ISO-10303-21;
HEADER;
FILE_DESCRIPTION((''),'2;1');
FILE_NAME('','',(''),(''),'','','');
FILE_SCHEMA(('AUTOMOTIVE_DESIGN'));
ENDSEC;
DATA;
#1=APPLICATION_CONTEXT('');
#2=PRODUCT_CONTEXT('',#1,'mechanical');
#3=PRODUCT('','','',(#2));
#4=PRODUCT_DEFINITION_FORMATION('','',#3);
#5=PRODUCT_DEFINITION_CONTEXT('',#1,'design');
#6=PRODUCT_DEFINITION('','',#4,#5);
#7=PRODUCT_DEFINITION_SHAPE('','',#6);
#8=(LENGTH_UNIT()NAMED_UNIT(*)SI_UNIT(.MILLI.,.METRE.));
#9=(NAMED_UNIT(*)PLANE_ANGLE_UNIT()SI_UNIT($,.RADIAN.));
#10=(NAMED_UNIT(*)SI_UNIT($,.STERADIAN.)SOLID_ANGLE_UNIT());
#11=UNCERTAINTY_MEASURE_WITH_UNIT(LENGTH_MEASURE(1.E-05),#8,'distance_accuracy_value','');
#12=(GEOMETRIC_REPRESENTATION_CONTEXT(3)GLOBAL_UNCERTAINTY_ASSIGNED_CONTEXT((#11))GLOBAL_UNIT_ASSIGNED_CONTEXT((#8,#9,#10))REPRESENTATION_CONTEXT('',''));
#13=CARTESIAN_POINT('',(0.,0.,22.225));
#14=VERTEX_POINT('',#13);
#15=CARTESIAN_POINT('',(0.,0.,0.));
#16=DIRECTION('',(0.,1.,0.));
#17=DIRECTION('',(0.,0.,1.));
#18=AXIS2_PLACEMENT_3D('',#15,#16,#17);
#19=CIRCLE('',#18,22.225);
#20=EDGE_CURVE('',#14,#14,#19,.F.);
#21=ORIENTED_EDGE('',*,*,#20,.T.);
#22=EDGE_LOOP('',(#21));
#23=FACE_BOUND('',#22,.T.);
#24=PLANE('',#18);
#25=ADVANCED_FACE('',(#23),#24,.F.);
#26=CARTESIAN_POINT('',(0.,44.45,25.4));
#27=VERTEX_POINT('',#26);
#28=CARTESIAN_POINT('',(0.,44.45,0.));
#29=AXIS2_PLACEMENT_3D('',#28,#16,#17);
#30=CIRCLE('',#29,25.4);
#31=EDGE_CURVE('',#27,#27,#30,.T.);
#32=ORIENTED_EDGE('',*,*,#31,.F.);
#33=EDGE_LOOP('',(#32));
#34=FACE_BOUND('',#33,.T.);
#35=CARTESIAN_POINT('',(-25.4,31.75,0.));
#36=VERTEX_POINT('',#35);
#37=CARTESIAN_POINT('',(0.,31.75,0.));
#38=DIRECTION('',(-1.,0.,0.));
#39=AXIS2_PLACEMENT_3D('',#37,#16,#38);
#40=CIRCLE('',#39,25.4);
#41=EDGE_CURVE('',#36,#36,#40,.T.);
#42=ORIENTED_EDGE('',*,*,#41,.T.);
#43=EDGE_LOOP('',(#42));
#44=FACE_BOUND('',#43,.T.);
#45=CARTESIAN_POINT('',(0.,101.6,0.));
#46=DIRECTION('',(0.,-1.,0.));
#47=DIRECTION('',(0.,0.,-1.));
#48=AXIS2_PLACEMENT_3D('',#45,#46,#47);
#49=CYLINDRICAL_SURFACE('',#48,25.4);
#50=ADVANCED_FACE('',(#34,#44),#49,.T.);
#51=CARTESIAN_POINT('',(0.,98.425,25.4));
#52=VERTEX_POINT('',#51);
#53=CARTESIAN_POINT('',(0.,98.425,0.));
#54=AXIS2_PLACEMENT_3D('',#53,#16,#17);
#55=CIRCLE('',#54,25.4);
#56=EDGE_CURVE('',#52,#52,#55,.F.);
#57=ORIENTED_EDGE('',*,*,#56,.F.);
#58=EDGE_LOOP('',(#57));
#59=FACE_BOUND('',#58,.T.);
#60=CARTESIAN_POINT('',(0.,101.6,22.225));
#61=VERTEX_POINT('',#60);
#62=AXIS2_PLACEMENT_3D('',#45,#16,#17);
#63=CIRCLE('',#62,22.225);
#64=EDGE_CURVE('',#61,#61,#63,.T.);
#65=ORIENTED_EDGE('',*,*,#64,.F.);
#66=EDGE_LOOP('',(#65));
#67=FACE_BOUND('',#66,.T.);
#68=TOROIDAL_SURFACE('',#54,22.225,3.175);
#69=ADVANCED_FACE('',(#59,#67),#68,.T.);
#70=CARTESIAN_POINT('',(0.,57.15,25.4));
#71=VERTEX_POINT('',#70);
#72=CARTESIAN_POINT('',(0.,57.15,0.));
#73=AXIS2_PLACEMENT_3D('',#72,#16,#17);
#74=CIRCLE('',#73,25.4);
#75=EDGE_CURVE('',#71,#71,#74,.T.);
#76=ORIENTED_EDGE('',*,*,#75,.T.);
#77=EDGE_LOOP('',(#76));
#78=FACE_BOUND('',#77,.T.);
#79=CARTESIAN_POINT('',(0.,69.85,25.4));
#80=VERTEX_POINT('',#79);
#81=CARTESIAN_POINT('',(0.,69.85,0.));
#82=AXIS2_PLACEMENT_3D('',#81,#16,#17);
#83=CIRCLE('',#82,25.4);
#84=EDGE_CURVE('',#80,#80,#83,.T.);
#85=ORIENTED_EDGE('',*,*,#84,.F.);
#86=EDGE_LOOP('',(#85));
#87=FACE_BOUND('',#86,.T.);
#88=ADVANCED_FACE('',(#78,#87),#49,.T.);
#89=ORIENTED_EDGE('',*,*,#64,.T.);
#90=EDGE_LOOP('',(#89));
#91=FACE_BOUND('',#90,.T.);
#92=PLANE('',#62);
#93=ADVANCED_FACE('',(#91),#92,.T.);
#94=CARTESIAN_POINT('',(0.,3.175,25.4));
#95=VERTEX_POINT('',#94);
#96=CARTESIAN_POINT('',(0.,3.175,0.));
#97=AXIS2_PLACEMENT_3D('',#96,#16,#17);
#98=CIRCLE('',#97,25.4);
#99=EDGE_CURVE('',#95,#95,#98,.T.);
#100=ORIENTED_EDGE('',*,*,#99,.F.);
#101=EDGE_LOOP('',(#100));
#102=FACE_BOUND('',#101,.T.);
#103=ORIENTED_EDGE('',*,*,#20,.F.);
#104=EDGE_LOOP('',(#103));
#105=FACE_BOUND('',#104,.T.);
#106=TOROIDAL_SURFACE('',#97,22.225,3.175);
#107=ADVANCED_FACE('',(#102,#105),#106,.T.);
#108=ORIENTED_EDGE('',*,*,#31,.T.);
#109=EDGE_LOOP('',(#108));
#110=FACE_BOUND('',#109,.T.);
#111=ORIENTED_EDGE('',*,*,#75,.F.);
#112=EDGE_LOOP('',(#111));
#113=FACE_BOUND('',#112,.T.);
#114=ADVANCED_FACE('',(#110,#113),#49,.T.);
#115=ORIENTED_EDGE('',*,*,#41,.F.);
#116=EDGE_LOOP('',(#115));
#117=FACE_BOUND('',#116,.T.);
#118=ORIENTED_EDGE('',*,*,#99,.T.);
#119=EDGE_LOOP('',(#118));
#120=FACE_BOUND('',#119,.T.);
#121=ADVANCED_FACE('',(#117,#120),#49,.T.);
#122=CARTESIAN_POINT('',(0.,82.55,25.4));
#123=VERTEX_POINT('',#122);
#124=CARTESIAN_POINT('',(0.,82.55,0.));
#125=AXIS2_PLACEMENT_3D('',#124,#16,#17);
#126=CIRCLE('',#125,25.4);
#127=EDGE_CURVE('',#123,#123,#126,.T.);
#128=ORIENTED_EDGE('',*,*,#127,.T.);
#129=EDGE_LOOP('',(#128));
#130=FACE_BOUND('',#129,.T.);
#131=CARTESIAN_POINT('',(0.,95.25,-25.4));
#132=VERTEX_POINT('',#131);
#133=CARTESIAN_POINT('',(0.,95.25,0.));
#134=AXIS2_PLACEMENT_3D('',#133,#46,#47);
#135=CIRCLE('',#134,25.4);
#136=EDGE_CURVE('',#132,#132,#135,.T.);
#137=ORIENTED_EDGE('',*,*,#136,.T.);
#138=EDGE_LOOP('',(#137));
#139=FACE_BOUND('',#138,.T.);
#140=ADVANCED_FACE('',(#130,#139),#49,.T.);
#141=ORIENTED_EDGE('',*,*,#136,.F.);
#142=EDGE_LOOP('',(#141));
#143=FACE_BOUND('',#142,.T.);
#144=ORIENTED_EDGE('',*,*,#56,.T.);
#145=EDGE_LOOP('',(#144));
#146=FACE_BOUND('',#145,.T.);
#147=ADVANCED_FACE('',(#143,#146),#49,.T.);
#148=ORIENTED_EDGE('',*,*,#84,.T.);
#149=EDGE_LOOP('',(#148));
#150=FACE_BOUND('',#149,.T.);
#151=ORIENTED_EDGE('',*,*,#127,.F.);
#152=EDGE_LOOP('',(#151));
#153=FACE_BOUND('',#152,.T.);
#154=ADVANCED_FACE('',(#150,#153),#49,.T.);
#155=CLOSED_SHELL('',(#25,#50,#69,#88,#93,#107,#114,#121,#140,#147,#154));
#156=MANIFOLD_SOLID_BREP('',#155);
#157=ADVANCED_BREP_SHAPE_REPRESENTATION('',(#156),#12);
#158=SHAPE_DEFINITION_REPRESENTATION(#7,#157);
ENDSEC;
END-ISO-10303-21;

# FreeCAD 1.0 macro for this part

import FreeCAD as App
import Part
import Sketcher
from FreeCAD import Vector
Q = App.Units.Quantity


def edges_at(feature, points):
    """Names of the edges that pass closest to the given points."""
    edges = feature.Shape.Edges
    near = lambda p: min(range(len(edges)), key=lambda i: edges[i].distToShape(Part.Vertex(*p))[0])
    return sorted({f"Edge{near(p) + 1}" for p in points})

doc = App.newDocument("Part")
body = doc.addObject("PartDesign::Body", "Body")

# Sketch on XZ plane
sketch1 = body.newObject("Sketcher::SketchObject", "Sketch")
sketch1.AttachmentSupport = (doc.getObject("XZ_Plane"), [""])
sketch1.MapMode = "FlatFace"
sketch1.addGeometry(Part.Circle(Vector(0, 0, 0), Vector(0, 0, 1), 25), False)
sketch1.addConstraint(Sketcher.Constraint("Coincident", 0, 3, -1, 1))
sketch1.addConstraint(Sketcher.Constraint("Diameter", 0, Q("2 in")))
pad1 = body.newObject("PartDesign::Pad", "Pad")
pad1.Profile = sketch1
pad1.Length = Q("4 in")
pad1.Reversed = True
doc.recompute()

fillet = body.newObject("PartDesign::Fillet", "Fillet")
fillet.Base = (pad1, edges_at(pad1, [(-25.4, 101.6, 0)]))
fillet.Radius = Q("0.125 in")
doc.recompute()

fillet2 = body.newObject("PartDesign::Fillet", "Fillet001")
fillet2.Base = (fillet, edges_at(fillet, [(-25.4, 0, 0)]))
fillet2.Radius = Q("0.125 in")

doc.recompute()
